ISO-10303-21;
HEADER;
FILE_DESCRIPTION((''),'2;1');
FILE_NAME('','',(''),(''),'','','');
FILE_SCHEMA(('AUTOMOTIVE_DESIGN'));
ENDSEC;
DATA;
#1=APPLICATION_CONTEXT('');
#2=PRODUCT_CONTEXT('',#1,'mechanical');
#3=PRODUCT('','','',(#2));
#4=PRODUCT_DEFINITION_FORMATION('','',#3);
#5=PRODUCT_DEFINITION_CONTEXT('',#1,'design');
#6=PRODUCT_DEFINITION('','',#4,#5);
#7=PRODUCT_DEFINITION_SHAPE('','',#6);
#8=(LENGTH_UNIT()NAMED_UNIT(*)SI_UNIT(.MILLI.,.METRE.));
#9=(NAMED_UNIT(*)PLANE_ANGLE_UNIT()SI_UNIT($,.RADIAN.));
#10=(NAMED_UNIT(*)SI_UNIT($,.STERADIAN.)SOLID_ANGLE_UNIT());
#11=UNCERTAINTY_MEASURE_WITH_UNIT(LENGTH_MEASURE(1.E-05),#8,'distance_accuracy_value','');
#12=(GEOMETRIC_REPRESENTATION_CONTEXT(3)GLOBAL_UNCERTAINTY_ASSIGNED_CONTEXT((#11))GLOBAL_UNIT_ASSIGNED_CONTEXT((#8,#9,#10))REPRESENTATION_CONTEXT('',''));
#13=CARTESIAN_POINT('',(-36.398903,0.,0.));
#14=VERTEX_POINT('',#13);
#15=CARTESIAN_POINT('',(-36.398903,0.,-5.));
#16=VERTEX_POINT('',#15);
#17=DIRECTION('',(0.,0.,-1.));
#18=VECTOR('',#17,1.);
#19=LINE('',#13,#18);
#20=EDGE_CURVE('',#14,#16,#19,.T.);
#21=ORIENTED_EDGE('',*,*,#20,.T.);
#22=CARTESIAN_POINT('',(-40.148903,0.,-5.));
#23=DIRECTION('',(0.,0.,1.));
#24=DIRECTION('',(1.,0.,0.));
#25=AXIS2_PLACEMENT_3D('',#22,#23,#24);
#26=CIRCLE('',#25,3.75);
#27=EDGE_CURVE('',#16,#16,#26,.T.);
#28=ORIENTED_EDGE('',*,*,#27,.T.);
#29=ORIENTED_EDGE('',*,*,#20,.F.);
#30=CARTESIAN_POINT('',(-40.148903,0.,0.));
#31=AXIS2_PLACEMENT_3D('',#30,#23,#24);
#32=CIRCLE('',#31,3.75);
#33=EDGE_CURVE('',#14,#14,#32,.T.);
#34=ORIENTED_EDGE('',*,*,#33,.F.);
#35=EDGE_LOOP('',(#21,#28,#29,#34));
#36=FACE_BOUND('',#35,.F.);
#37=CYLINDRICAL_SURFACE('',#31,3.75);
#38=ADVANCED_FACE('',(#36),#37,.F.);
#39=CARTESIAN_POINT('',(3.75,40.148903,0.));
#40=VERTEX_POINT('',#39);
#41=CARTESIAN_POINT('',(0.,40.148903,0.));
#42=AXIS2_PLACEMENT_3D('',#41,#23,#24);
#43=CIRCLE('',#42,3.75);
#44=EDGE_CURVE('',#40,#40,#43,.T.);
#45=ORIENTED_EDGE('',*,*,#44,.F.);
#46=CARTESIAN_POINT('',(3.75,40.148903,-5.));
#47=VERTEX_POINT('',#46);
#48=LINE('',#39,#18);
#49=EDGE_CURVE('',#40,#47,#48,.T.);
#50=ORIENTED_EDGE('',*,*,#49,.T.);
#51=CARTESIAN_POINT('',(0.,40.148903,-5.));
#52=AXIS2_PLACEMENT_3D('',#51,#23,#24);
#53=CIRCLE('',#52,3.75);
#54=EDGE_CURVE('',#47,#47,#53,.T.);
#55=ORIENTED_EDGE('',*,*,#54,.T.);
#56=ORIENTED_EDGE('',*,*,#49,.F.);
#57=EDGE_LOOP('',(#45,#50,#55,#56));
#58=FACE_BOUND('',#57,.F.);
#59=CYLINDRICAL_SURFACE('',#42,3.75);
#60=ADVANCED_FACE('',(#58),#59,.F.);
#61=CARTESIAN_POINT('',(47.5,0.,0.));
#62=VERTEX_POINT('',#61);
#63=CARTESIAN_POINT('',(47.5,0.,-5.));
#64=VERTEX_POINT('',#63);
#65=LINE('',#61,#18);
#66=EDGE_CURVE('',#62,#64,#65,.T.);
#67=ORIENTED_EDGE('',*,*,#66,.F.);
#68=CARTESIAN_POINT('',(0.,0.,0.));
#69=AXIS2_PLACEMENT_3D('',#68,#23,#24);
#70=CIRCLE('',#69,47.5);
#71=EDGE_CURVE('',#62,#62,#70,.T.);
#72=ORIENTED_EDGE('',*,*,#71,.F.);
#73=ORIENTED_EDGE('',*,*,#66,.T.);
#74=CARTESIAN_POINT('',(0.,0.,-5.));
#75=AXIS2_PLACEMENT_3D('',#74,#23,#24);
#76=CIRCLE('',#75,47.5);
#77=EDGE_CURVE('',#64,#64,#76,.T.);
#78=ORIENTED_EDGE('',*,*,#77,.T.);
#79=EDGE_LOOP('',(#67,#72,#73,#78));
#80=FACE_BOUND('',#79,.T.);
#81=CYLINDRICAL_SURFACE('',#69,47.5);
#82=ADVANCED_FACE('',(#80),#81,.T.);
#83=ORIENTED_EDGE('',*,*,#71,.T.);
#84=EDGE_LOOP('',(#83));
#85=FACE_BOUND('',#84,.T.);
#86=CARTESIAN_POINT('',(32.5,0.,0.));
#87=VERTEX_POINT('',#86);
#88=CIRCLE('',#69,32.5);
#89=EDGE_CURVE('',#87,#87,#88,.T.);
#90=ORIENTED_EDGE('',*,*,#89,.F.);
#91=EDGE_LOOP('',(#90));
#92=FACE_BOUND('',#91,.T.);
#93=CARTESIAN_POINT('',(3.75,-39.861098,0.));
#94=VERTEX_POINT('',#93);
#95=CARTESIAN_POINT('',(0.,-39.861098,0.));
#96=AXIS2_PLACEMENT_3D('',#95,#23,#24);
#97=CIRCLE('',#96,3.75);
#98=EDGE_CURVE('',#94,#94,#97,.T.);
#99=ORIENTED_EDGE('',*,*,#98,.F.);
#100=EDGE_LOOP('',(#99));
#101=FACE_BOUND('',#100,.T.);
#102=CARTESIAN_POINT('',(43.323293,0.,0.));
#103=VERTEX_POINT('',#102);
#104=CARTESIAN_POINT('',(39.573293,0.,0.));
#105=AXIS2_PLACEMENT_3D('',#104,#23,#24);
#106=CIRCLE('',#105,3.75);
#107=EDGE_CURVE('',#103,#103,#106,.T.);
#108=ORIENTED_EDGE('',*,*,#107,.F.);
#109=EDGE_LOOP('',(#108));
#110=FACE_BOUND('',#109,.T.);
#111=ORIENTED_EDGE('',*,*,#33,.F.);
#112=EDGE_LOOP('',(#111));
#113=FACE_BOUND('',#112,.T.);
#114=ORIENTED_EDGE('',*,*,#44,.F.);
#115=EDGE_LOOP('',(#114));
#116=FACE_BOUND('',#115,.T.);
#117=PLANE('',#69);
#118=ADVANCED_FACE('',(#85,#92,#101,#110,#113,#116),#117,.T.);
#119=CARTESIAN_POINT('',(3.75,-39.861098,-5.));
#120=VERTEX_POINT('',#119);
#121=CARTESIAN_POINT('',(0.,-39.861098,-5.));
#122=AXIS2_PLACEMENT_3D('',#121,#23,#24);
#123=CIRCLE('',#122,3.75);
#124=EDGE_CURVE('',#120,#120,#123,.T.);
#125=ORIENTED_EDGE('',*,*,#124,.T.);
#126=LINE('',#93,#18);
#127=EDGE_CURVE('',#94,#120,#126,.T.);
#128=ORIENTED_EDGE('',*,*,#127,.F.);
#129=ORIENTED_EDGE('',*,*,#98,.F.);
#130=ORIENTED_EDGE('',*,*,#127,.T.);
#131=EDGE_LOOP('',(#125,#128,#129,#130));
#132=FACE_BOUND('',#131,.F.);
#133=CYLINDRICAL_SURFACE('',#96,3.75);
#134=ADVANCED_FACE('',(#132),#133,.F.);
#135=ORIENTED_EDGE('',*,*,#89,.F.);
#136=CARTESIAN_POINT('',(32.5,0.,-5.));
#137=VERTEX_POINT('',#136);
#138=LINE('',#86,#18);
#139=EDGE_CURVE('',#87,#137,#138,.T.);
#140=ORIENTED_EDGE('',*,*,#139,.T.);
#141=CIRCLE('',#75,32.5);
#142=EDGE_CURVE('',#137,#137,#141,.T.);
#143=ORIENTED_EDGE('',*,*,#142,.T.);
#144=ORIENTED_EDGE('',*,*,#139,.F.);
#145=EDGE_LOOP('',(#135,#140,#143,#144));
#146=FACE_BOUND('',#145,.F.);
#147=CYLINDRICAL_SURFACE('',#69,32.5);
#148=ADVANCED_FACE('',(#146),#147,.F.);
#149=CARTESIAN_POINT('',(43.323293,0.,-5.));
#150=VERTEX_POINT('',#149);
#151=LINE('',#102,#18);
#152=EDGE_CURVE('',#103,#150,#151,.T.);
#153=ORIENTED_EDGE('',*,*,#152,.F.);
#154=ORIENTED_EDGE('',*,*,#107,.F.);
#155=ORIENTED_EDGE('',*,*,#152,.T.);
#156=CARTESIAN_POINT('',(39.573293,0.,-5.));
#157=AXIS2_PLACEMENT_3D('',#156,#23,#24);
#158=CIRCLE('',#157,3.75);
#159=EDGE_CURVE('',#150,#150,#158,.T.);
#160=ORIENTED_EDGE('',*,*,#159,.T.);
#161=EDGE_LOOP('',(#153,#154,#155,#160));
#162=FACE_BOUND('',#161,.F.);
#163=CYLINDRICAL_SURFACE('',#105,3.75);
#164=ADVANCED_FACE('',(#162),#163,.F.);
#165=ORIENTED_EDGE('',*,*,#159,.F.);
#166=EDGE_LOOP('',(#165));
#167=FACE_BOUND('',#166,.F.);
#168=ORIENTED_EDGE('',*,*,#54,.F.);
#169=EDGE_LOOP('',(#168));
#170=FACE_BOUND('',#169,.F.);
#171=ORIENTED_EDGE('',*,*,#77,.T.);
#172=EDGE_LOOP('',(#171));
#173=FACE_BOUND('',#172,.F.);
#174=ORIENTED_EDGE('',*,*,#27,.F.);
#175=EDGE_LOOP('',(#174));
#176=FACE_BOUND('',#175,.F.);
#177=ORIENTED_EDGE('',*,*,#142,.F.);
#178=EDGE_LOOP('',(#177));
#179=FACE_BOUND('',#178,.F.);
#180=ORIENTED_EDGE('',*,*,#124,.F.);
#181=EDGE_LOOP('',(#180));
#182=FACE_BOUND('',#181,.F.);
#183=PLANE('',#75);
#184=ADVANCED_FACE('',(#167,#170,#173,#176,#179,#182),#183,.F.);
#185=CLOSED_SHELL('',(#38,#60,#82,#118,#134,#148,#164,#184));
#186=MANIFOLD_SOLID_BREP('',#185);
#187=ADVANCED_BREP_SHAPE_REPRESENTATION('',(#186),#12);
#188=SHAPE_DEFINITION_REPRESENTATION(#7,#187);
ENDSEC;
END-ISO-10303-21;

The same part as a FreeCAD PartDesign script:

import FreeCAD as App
import Part
import Sketcher

V = App.Vector

doc = App.newDocument("Part")
body = doc.addObject("PartDesign::Body", "Body")

# Sketch on XY plane
sketch1 = doc.addObject("Sketcher::SketchObject", "Sketch")
body.addObject(sketch1)
sketch1.AttachmentSupport = (doc.XY_Plane, [""])
sketch1.MapMode = "FlatFace"
sketch1.addGeometry([
    Part.Circle(V(0, 0, 0), V(0, 0, 1), 47.5),  # 0
    Part.Circle(V(-40.1, 0, 0), V(0, 0, 1), 3.8),  # 1
    Part.Circle(V(0, -39.9, 0), V(0, 0, 1), 3.8),  # 2
    Part.Circle(V(0, 0, 0), V(0, 0, 1), 32.5),  # 3
    Part.Circle(V(39.6, 0, 0), V(0, 0, 1), 3.8),  # 4
    Part.Circle(V(0, 40.1, 0), V(0, 0, 1), 3.8),  # 5
], False)
sketch1.addConstraint([
    Sketcher.Constraint("Coincident", 0, 3, -1, 1),
    Sketcher.Constraint("Coincident", 3, 3, -1, 1),
    Sketcher.Constraint("Equal", 1, 2),
    Sketcher.Constraint("Equal", 2, 4),
    Sketcher.Constraint("Equal", 4, 5),
    Sketcher.Constraint("PointOnObject", 1, 3, -1),
    Sketcher.Constraint("PointOnObject", 2, 3, -2),
    Sketcher.Constraint("PointOnObject", 4, 3, -1),
    Sketcher.Constraint("PointOnObject", 5, 3, -2),
    Sketcher.Constraint("Diameter", 0, 95.0),
    Sketcher.Constraint("Diameter", 3, 65.0),
    Sketcher.Constraint("Diameter", 1, 7.5),
    Sketcher.Constraint("DistanceY", 2, 3, 5, 3, 80.010001),
    Sketcher.Constraint("DistanceX", 1, 3, -1, 1, 40.148903),
    Sketcher.Constraint("DistanceY", 2, 3, -1, 1, 39.861098),
    Sketcher.Constraint("DistanceX", -1, 1, 4, 3, 39.573293),
])
pad1 = doc.addObject("PartDesign::Pad", "Pad")
body.addObject(pad1)
pad1.Profile = sketch1
pad1.Length = 5
pad1.Reversed = True

doc.recompute()
